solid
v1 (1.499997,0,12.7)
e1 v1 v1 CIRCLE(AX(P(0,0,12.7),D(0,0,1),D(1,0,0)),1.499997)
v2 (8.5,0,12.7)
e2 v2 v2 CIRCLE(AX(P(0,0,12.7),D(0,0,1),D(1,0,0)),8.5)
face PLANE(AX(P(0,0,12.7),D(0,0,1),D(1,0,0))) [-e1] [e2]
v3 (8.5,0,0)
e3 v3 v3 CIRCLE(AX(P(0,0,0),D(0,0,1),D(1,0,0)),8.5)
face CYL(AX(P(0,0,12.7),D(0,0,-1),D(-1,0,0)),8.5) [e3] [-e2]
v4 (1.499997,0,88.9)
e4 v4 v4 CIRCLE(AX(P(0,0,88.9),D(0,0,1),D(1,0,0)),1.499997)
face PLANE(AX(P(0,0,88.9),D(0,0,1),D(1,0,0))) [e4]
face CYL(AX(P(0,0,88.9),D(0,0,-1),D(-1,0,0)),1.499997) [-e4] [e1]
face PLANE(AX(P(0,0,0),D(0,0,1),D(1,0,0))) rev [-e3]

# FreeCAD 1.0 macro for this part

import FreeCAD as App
import Part
import Sketcher

V = App.Vector
Q = App.Units.Quantity

doc = App.newDocument("Part")
params = doc.addObject("Spreadsheet::Sheet", "Params")
for row, (alias, value) in enumerate([
    ("pad1_length", "0.5 in"),
    ("pad2_length", "3.5 in"),
], start=1):
    params.set(f"A{row}", alias)
    params.set(f"B{row}", "=" + value)
    params.setAlias(f"B{row}", alias)

body = doc.addObject("PartDesign::Body", "Body")

sketch1 = doc.addObject("Sketcher::SketchObject", "Sketch")
body.addObject(sketch1)
sketch1.AttachmentSupport = (doc.XY_Plane, [""])
sketch1.MapMode = "FlatFace"
sketch1.addGeometry(Part.Circle(V(0, 0, 0), V(0, 0, 1), 8.5), False)
sketch1.addGeometry(Part.Circle(V(0, 0, 0), V(0, 0, 1), 1.499997), False)
sketch1.addConstraint(Sketcher.Constraint("Coincident", 0, 3, -1, 1))
sketch1.addConstraint(Sketcher.Constraint("Coincident", 1, 3, -1, 1))
sketch1.addConstraint(Sketcher.Constraint("Diameter", 0, Q("17 mm")))
sketch1.addConstraint(Sketcher.Constraint("Diameter", 1, Q("2.999994 mm")))
pad1 = doc.addObject("PartDesign::Pad", "Pad")
body.addObject(pad1)
pad1.Profile = sketch1
pad1.setExpression("Length", "Params.pad1_length")

sketch2 = doc.addObject("Sketcher::SketchObject", "Sketch001")
body.addObject(sketch2)
sketch2.AttachmentSupport = (doc.XY_Plane, [""])
sketch2.MapMode = "FlatFace"
sketch2.addGeometry(Part.Circle(V(0, 0, 0), V(0, 0, 1), 1.499997), False)
sketch2.addConstraint(Sketcher.Constraint("Coincident", 0, 3, -1, 1))
sketch2.addConstraint(Sketcher.Constraint("Diameter", 0, Q("2.999994 mm")))
pad2 = doc.addObject("PartDesign::Pad", "Pad001")
body.addObject(pad2)
pad2.Profile = sketch2
pad2.setExpression("Length", "Params.pad2_length")

doc.recompute()
